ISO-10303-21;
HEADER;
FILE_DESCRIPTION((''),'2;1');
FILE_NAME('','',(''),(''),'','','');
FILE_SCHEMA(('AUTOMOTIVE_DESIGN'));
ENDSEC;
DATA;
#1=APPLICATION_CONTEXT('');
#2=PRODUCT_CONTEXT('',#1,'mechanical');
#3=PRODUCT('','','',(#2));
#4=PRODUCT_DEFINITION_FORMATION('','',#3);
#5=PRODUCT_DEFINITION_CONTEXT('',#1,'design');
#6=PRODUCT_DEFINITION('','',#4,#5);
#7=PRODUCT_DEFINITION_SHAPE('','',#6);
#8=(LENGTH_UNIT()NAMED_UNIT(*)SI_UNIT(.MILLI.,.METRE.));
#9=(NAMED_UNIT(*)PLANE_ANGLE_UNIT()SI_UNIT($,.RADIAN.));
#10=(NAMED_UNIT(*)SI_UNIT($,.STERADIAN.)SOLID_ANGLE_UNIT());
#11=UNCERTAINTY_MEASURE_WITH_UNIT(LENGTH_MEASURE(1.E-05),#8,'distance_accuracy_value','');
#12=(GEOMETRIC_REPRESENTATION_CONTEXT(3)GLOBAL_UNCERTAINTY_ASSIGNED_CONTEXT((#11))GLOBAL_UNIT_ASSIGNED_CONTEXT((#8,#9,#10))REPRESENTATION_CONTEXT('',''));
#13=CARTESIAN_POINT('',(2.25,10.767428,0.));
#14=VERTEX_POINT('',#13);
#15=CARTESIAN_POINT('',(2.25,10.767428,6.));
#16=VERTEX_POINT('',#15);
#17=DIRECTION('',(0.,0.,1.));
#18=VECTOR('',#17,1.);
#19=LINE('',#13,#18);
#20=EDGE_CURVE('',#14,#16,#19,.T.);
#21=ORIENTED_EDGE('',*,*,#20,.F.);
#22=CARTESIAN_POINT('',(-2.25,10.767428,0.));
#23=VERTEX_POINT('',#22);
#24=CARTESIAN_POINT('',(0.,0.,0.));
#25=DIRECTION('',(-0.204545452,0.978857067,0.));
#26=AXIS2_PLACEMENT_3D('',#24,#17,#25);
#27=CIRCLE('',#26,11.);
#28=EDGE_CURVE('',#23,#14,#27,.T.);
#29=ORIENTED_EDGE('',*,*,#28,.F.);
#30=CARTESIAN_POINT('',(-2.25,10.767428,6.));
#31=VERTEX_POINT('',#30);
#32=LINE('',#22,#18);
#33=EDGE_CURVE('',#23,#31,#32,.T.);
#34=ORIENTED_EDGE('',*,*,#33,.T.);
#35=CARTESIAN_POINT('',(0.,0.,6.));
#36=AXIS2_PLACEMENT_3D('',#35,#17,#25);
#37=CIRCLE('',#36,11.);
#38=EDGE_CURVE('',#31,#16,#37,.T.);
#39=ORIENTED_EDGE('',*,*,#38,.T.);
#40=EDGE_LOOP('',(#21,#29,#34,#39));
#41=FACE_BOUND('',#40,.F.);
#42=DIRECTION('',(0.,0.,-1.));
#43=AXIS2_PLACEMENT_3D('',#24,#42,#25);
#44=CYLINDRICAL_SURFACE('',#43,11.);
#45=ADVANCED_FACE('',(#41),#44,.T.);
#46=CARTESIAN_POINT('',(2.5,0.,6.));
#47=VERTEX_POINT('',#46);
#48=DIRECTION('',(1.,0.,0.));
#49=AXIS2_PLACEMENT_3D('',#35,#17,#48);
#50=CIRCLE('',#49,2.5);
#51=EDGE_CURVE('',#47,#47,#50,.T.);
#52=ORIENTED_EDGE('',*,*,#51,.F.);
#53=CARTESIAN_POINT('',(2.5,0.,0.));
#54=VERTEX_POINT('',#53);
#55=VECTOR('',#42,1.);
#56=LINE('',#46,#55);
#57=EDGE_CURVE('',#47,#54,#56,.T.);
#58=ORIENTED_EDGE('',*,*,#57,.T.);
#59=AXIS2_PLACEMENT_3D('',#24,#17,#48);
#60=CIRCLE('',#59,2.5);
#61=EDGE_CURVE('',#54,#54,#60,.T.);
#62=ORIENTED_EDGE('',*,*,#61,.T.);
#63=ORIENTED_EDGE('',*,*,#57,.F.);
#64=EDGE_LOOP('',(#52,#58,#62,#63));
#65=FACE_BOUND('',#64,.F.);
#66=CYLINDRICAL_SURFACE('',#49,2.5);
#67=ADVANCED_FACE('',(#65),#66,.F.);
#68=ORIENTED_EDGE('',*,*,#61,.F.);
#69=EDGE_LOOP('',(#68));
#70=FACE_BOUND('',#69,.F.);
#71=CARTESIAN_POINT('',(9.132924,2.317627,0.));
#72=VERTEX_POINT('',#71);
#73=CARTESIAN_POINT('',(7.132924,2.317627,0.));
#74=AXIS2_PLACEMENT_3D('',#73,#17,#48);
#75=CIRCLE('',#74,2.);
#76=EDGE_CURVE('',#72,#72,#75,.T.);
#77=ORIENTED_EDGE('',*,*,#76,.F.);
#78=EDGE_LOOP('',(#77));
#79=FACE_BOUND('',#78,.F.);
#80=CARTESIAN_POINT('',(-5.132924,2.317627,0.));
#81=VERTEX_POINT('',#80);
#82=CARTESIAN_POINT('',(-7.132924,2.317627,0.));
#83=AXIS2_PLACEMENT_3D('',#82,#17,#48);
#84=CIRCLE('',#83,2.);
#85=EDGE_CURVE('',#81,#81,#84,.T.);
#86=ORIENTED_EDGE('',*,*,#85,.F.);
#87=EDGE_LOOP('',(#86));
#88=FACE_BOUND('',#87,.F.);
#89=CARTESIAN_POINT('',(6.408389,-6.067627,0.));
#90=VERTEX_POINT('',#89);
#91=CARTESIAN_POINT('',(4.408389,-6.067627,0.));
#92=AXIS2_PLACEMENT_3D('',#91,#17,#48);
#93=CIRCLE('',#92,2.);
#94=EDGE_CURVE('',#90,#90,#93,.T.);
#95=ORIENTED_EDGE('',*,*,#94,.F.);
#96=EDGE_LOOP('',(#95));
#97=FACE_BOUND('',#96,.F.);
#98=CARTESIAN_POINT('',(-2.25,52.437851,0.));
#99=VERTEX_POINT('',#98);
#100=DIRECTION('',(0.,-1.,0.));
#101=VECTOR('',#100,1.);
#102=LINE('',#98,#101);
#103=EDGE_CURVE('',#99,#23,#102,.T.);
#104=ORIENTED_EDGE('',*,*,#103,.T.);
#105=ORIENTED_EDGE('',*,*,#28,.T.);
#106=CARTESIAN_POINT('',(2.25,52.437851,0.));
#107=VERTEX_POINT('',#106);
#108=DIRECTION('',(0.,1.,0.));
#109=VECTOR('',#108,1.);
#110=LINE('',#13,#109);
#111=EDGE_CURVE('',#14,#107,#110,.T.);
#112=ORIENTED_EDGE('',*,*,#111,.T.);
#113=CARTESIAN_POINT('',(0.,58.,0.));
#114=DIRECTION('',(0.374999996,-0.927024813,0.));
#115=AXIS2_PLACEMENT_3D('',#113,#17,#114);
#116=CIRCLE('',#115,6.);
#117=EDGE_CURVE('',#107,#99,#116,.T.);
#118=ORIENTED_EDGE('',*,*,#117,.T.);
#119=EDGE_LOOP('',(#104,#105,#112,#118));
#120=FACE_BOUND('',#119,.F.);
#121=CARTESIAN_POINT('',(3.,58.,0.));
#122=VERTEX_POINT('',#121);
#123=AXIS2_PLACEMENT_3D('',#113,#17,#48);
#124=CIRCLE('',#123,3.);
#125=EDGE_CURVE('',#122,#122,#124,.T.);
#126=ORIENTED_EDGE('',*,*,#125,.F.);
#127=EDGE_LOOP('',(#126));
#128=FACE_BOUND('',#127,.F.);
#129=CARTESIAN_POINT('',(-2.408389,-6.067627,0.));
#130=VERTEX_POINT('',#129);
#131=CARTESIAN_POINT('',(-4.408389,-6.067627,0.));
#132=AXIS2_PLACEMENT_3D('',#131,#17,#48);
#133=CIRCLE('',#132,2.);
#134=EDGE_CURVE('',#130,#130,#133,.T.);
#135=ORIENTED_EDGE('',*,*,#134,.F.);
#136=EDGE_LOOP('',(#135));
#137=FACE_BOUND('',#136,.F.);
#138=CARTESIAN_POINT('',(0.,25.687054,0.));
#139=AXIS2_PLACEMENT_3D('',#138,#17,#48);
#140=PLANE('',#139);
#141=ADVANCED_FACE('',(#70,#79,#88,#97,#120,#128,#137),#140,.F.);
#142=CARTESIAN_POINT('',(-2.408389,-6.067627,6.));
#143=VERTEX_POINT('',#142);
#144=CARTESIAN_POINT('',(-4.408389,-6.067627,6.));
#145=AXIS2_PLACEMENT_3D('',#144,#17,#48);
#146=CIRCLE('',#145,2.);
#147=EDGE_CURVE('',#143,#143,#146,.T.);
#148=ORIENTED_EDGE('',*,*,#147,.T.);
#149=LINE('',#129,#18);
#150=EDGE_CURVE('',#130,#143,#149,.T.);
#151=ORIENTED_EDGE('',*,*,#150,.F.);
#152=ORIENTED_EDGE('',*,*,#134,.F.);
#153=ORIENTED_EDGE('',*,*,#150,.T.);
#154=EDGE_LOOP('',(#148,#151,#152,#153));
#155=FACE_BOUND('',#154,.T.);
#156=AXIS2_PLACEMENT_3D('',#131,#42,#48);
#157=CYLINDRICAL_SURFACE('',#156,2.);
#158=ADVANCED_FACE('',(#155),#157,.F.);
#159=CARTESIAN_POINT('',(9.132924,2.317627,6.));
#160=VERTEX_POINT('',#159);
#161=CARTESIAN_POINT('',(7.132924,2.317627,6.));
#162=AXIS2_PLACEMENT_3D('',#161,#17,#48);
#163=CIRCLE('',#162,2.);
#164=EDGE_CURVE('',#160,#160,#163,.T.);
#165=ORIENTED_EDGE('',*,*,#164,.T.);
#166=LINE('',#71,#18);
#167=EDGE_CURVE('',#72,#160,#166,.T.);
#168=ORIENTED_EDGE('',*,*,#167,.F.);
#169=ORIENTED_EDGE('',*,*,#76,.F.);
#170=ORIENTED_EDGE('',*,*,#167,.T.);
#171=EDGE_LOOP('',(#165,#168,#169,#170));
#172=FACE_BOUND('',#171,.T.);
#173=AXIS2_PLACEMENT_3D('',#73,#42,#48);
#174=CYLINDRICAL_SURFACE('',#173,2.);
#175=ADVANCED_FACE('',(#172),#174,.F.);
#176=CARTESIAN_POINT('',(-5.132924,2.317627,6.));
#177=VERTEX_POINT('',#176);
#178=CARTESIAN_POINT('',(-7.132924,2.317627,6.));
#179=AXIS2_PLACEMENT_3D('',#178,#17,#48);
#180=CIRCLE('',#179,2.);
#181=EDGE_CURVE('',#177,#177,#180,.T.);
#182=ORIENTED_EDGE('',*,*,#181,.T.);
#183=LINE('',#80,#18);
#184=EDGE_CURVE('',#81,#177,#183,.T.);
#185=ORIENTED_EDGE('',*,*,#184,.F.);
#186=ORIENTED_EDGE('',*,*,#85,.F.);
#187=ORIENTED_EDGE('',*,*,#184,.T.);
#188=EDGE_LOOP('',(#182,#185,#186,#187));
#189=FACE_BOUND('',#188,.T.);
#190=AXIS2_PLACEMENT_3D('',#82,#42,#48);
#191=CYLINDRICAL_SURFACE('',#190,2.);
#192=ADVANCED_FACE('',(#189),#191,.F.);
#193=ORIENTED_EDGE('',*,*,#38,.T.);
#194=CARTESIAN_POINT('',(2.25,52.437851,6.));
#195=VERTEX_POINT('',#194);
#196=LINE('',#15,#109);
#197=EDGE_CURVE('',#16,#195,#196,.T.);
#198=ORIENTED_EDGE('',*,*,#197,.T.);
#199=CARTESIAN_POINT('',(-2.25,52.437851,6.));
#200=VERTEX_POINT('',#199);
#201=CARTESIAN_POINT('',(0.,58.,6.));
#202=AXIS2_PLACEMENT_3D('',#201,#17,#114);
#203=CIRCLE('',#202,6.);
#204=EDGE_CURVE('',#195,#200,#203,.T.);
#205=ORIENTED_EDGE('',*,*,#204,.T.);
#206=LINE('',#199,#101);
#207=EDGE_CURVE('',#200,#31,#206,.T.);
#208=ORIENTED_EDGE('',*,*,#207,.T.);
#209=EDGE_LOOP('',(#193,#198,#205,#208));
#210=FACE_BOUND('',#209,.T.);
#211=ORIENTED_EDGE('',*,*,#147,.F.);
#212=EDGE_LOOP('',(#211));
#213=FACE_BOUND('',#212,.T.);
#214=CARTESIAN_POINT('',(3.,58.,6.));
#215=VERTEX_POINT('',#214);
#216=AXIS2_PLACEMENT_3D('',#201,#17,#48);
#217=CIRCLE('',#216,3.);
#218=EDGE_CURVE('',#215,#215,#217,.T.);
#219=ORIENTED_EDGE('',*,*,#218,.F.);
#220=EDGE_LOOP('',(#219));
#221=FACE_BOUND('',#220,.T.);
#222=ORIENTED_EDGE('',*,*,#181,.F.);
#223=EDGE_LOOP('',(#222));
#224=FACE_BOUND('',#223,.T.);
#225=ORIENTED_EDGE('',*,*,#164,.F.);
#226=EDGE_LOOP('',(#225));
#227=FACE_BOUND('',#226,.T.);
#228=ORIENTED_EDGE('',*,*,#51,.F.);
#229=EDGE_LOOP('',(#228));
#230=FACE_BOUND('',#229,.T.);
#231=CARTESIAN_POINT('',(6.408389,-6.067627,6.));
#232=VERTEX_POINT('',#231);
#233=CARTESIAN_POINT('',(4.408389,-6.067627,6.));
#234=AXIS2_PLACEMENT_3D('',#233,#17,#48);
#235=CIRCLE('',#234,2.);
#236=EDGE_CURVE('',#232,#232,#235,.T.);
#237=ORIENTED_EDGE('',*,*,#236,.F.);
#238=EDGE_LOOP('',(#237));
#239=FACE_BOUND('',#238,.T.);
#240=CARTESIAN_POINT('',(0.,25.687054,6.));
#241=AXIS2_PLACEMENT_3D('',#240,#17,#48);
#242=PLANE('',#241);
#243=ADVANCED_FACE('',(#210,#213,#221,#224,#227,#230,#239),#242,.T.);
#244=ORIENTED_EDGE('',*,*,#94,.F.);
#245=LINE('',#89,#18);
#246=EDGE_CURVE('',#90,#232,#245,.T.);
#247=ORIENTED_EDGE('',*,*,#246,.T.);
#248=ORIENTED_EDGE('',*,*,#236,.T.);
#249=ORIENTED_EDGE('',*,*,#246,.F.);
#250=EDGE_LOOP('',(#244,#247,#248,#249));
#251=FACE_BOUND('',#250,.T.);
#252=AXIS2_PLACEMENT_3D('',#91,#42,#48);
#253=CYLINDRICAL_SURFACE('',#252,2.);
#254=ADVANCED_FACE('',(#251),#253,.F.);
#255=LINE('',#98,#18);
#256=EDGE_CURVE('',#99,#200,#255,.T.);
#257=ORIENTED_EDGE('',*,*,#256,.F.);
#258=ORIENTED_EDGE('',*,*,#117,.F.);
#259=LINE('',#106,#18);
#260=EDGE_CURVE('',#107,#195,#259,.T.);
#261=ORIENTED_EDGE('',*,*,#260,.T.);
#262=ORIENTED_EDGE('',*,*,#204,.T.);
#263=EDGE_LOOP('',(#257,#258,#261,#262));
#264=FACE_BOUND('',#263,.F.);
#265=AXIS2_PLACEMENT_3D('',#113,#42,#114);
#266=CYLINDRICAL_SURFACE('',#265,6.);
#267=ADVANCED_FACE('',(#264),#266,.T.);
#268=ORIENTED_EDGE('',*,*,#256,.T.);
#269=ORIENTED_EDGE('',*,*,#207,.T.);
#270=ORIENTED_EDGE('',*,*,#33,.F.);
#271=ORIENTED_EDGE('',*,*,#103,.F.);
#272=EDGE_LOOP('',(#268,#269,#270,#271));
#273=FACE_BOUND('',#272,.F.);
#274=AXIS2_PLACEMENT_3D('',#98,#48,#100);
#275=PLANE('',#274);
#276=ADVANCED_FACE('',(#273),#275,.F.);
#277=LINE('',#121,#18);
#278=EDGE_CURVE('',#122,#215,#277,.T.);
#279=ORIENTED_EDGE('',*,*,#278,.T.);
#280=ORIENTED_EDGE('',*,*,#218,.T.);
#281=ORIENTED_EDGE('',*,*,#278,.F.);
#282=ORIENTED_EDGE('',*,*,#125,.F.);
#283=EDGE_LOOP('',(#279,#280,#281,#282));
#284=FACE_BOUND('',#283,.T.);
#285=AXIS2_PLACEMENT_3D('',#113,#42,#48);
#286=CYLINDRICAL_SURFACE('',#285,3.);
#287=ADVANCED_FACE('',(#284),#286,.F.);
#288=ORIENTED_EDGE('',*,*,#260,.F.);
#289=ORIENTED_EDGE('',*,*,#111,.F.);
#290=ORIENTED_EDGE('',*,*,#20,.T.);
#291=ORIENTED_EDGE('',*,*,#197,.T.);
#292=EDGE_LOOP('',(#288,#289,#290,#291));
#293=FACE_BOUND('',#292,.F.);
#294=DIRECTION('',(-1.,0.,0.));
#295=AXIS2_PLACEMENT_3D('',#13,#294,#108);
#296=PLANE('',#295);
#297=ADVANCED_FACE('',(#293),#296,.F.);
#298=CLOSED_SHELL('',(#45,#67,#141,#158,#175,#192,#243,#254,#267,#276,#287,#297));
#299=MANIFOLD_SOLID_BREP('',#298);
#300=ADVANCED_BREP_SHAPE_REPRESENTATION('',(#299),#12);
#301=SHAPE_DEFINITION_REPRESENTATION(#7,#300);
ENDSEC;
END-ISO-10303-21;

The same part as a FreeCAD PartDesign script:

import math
import FreeCAD as App
import Part
import Sketcher

doc = App.newDocument("Part")
body = doc.addObject("PartDesign::Body", "Body")

# Sketch on XY plane
sketch1 = doc.addObject("Sketcher::SketchObject", "Sketch")
body.addObject(sketch1)
sketch1.AttachmentSupport = (doc.XY_Plane, [""])
sketch1.MapMode = "FlatFace"
sketch1.addGeometry([
    Part.LineSegment(App.Vector(-2.2, 52.4, 0), App.Vector(-2.2, 10.8, 0)),  # 0
    Part.ArcOfCircle(Part.Circle(App.Vector(0, 0, 0), App.Vector(0, 0, 1), 11), math.radians(102), math.radians(438)),  # 1
    Part.LineSegment(App.Vector(2.2, 10.8, 0), App.Vector(2.2, 52.4, 0)),  # 2
    Part.ArcOfCircle(Part.Circle(App.Vector(0, 58, 0), App.Vector(0, 0, 1), 6), math.radians(-68), math.radians(248)),  # 3
    Part.Circle(App.Vector(-7.1, 2.3, 0), App.Vector(0, 0, 1), 2),  # 4
    Part.Circle(App.Vector(-4.4, -6.1, 0), App.Vector(0, 0, 1), 2),  # 5
    Part.Circle(App.Vector(4.4, -6.1, 0), App.Vector(0, 0, 1), 2),  # 6
    Part.Circle(App.Vector(7.1, 2.3, 0), App.Vector(0, 0, 1), 2),  # 7
    Part.Circle(App.Vector(0, 58, 0), App.Vector(0, 0, 1), 3),  # 8
], False)
sketch1.addConstraint([
    Sketcher.Constraint("Coincident", 0, 2, 1, 1),
    Sketcher.Constraint("Coincident", 1, 2, 2, 1),
    Sketcher.Constraint("Coincident", 2, 2, 3, 1),
    Sketcher.Constraint("Coincident", 3, 2, 0, 1),
    Sketcher.Constraint("Vertical", 0),
    Sketcher.Constraint("Vertical", 2),
    Sketcher.Constraint("Coincident", 1, 3, -1, 1),
    Sketcher.Constraint("Coincident", 8, 3, 3, 3),
    Sketcher.Constraint("Equal", 4, 5),
    Sketcher.Constraint("Equal", 5, 6),
    Sketcher.Constraint("Equal", 6, 7),
    Sketcher.Constraint("Symmetric", 5, 3, 6, 3, -2),
    Sketcher.Constraint("Symmetric", 4, 3, 7, 3, -2),
    Sketcher.Constraint("Symmetric", 2, 2, 3, 2, -2),
    Sketcher.Constraint("Diameter", 4, 4.0),
    Sketcher.Constraint("Diameter", 8, 6.0),
    Sketcher.Constraint("Radius", 1, 11.0),
    Sketcher.Constraint("Radius", 3, 6.0),
    Sketcher.Constraint("DistanceY", -1, 1, 3, 3, 58.0),
    Sketcher.Constraint("DistanceX", 0, 2, 1, 2, 4.5),
    Sketcher.Constraint("DistanceY", 4, 3, 0, 2, 8.449801),
    Sketcher.Constraint("DistanceX", 5, 3, -1, 1, 4.408389),
    Sketcher.Constraint("DistanceX", 4, 3, -1, 1, 7.132924),
    Sketcher.Constraint("DistanceY", 5, 3, -1, 1, 6.067627),
])
pad1 = doc.addObject("PartDesign::Pad", "Pad")
body.addObject(pad1)
pad1.Profile = sketch1
pad1.Length = 6

# Sketch on XY plane
sketch2 = doc.addObject("Sketcher::SketchObject", "Sketch001")
body.addObject(sketch2)
sketch2.AttachmentSupport = (doc.XY_Plane, [""])
sketch2.MapMode = "FlatFace"
sketch2.AttachmentOffset = App.Placement(App.Vector(0, 0, 6), App.Rotation())
sketch2.addGeometry(Part.Circle(App.Vector(0, 0, 0), App.Vector(0, 0, 1), 2.5), False)
sketch2.addConstraint([
    Sketcher.Constraint("Coincident", 0, 3, -1, 1),
    Sketcher.Constraint("Diameter", 0, 5.0),
])
pocket1 = doc.addObject("PartDesign::Pocket", "Pocket")
body.addObject(pocket1)
pocket1.Profile = sketch2
pocket1.Length = 8.1

doc.recompute()
